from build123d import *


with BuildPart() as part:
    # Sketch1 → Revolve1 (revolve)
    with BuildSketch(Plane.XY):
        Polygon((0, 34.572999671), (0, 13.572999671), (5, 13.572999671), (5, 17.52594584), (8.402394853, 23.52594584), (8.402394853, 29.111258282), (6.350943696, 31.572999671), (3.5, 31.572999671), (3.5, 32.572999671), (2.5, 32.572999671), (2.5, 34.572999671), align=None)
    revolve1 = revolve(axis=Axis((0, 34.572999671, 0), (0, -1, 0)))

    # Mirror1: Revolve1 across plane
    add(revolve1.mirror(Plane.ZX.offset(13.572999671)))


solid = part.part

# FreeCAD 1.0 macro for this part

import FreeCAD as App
import Part
import Sketcher

V = App.Vector


def add_polygon(sketch, points):
    """Adds a closed chain of lines whose ends are joined by coincident constraints."""
    first, n = sketch.GeometryCount, len(points)
    for a, b in zip(points, points[1:] + points[:1]):
        sketch.addGeometry(Part.LineSegment(App.Vector(*a, 0), App.Vector(*b, 0)), False)
    for i in range(n):
        sketch.addConstraint(Sketcher.Constraint("Coincident", first + i, 2, first + (i + 1) % n, 1))

doc = App.newDocument("Part")
body = doc.addObject("PartDesign::Body", "Body")

sketch1 = body.newObject("Sketcher::SketchObject", "Sketch")
sketch1.AttachmentSupport = (doc.getObject("XY_Plane"), [""])
sketch1.MapMode = "FlatFace"
add_polygon(sketch1, [(0, 34.6), (0, 13.6), (5, 13.6), (5, 17.5), (8.4, 23.5), (8.4, 29.1), (6.4, 31.6), (3.5, 31.6), (3.5, 32.6), (2.5, 32.6), (2.5, 34.6)])
sketch1.addConstraint([
    Sketcher.Constraint("Vertical", 0),
    Sketcher.Constraint("Horizontal", 1),
    Sketcher.Constraint("Vertical", 2),
    Sketcher.Constraint("Vertical", 4),
    Sketcher.Constraint("Horizontal", 6),
    Sketcher.Constraint("Vertical", 7),
    Sketcher.Constraint("Horizontal", 8),
    Sketcher.Constraint("Vertical", 9),
    Sketcher.Constraint("Horizontal", 10),
    Sketcher.Constraint("PointOnObject", 0, 2, -2),
    Sketcher.Constraint("Equal", 8, 7),
    Sketcher.Constraint("DistanceX", 1, 1, 1, 2, 5.0),
    Sketcher.Constraint("DistanceX", 8, 2, 8, 1, 1.0),
    Sketcher.Constraint("DistanceY", 0, 2, 0, 1, 21.0),
    Sketcher.Constraint("DistanceY", 9, 1, 9, 2, 2.0),
    Sketcher.Constraint("DistanceX", 10, 2, 10, 1, 2.5),
    Sketcher.Constraint("DistanceY", 2, 2, 3, 2, 6.0),
    Sketcher.Constraint("DistanceY", -1, 1, 0, 2, 13.573),
    Sketcher.Constraint("Distance", 5, 3.204469),
    Sketcher.Constraint("DistanceX", 6, 2, 6, 1, 2.850944),
    Sketcher.Constraint("DistanceY", 2, 1, 2, 2, 3.952946),
    Sketcher.Constraint("DistanceY", 4, 1, 4, 2, 5.585312),
])
revolution = body.newObject("PartDesign::Revolution", "Revolution")
revolution.Profile = sketch1
revolution.ReferenceAxis = (sketch1, ["V_Axis"])
revolution.Angle = 360
doc.recompute()

datumplane = body.newObject("PartDesign::Plane", "DatumPlane")
datumplane.AttachmentSupport = (doc.getObject("XZ_Plane"), [""])
datumplane.MapMode = "FlatFace"
datumplane.AttachmentOffset = App.Placement(V(0, 0, -13.573), App.Rotation())
mirrored = body.newObject("PartDesign::Mirrored", "Mirrored")
mirrored.Originals = [revolution]
mirrored.MirrorPlane = (datumplane, [""])
body.Tip = mirrored

doc.recompute()
